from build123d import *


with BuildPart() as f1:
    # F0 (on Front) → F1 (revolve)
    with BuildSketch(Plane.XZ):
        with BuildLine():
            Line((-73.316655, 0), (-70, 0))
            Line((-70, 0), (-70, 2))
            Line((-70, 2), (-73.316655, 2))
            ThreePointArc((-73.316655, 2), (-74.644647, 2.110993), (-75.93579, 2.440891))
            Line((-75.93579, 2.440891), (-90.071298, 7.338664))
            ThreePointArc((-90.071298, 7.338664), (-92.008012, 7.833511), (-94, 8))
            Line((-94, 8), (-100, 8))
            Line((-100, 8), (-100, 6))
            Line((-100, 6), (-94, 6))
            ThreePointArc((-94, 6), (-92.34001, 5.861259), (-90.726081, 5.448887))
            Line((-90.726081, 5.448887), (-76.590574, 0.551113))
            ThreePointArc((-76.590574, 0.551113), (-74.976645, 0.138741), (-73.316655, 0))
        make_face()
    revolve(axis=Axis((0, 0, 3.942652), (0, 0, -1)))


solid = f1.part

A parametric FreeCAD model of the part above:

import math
import FreeCAD as App
import Part
import Sketcher

V = App.Vector
Q = App.Units.Quantity

doc = App.newDocument("Part")
body = doc.addObject("PartDesign::Body", "Body")

# Sketch on XZ plane
sketch1 = body.newObject("Sketcher::SketchObject", "Sketch")
sketch1.AttachmentSupport = (doc.getObject("XZ_Plane"), [""])
sketch1.MapMode = "FlatFace"
sketch1.addGeometry([
    Part.LineSegment(V(-73.316655, 0, 0), V(-70, 0, 0)),  # 0
    Part.LineSegment(V(-70, 0, 0), V(-70, 2, 0)),  # 1
    Part.LineSegment(V(-70, 2, 0), V(-73.316655, 2, 0)),  # 2
    Part.ArcOfCircle(Part.Circle(V(-73.316651, 10.000019, 0), V(0, 0, 1), 8.000019), math.radians(-109.11053), math.radians(-90.000027)),  # 3
    Part.LineSegment(V(-75.93579, 2.440891, 0), V(-90.071298, 7.338664, 0)),  # 4
    Part.ArcOfCircle(Part.Circle(V(-94.000001, -4.000005, 0), V(0, 0, 1), 12.000005), math.radians(70.889458), math.radians(89.999997)),  # 5
    Part.LineSegment(V(-94, 8, 0), V(-100, 8, 0)),  # 6
    Part.LineSegment(V(-100, 8, 0), V(-100, 6, 0)),  # 7
    Part.LineSegment(V(-100, 6, 0), V(-94, 6, 0)),  # 8
    Part.ArcOfCircle(Part.Circle(V(-94.000004, -4.000035, 0), V(0, 0, 1), 10.000035), math.radians(70.889493), math.radians(89.999976)),  # 9
    Part.LineSegment(V(-90.726081, 5.448887, 0), V(-76.590574, 0.551113, 0)),  # 10
    Part.ArcOfCircle(Part.Circle(V(-73.316651, 10.000035, 0), V(0, 0, 1), 10.000035), math.radians(-109.110507), math.radians(-90.000024)),  # 11
], False)
sketch1.addConstraint([
    Sketcher.Constraint("Coincident", 0, 2, 1, 1),
    Sketcher.Constraint("Coincident", 1, 2, 2, 1),
    Sketcher.Constraint("Coincident", 2, 2, 3, 2),
    Sketcher.Constraint("Coincident", 3, 1, 4, 1),
    Sketcher.Constraint("Coincident", 4, 2, 5, 1),
    Sketcher.Constraint("Coincident", 5, 2, 6, 1),
    Sketcher.Constraint("Coincident", 6, 2, 7, 1),
    Sketcher.Constraint("Coincident", 7, 2, 8, 1),
    Sketcher.Constraint("Coincident", 8, 2, 9, 2),
    Sketcher.Constraint("Coincident", 9, 1, 10, 1),
    Sketcher.Constraint("Coincident", 10, 2, 11, 1),
    Sketcher.Constraint("Coincident", 11, 2, 0, 1),
    Sketcher.Constraint("Horizontal", 0),
    Sketcher.Constraint("Vertical", 1),
    Sketcher.Constraint("Horizontal", 2),
    Sketcher.Constraint("Horizontal", 6),
    Sketcher.Constraint("Vertical", 7),
    Sketcher.Constraint("Horizontal", 8),
    Sketcher.Constraint("PointOnObject", 0, 2, -1),
    Sketcher.Constraint("DistanceX", 6, 2, 6, 1, Q("6 mm")),
    Sketcher.Constraint("DistanceX", 8, 1, 8, 2, Q("6 mm")),
    Sketcher.Constraint("DistanceY", 1, 1, 1, 2, Q("2 mm")),
    Sketcher.Constraint("DistanceY", 7, 2, 7, 1, Q("2 mm")),
    Sketcher.Constraint("DistanceX", 5, 3, -1, 1, Q("94.000001 mm")),
    Sketcher.Constraint("DistanceX", 0, 2, -1, 1, Q("70 mm")),
    Sketcher.Constraint("DistanceX", 5, 2, -1, 1, Q("94 mm")),
    Sketcher.Constraint("DistanceY", -1, 1, 5, 2, Q("8 mm")),
    Sketcher.Constraint("Radius", 3, Q("8.000019 mm")),
    Sketcher.Constraint("Radius", 5, Q("12.000005 mm")),
    Sketcher.Constraint("Radius", 9, Q("10.000035 mm")),
    Sketcher.Constraint("Radius", 11, Q("10.000035 mm")),
    Sketcher.Constraint("DistanceX", 4, 2, -1, 1, Q("90.071298 mm")),
    Sketcher.Constraint("Distance", 10, Q("14.959972 mm")),
    Sketcher.Constraint("DistanceX", 0, 1, 0, 2, Q("3.316655 mm")),
    Sketcher.Constraint("DistanceX", 2, 2, 2, 1, Q("3.316655 mm")),
    Sketcher.Constraint("DistanceX", 3, 3, -1, 1, Q("73.316651 mm")),
    Sketcher.Constraint("DistanceX", 11, 3, -1, 1, Q("73.316651 mm")),
    Sketcher.Constraint("DistanceX", 3, 1, -1, 1, Q("75.93579 mm")),
    Sketcher.Constraint("DistanceX", 9, 1, -1, 1, Q("90.726081 mm")),
    Sketcher.Constraint("DistanceY", 10, 2, 3, 1, Q("1.889778 mm")),
])
revolution = body.newObject("PartDesign::Revolution", "Revolution")
revolution.Profile = sketch1
revolution.ReferenceAxis = (sketch1, ["V_Axis"])
revolution.Angle = 360

doc.recompute()
